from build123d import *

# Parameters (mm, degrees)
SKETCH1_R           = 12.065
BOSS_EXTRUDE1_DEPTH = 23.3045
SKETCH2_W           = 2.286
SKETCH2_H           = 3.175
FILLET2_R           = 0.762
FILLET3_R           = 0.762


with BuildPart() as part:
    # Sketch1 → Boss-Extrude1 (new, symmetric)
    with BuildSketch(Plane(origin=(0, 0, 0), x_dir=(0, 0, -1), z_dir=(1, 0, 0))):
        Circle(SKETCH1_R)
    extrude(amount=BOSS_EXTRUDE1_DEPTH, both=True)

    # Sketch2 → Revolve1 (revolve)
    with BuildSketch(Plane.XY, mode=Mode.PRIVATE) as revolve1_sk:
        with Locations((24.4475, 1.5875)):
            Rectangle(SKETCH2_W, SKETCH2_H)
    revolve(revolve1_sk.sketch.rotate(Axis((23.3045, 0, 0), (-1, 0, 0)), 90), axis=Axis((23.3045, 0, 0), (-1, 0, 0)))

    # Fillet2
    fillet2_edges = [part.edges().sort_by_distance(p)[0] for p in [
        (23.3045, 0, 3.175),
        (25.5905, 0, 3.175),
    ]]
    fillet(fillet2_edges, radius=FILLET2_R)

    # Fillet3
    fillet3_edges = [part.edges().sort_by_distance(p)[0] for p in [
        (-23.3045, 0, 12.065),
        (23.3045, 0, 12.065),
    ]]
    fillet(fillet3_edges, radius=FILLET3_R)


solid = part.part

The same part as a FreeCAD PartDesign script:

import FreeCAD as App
import Part
import Sketcher
from FreeCAD import Vector
Q = App.Units.Quantity


def edges_at(feature, points):
    """Names of the edges that pass closest to the given points."""
    edges = feature.Shape.Edges
    near = lambda p: min(range(len(edges)), key=lambda i: edges[i].distToShape(Part.Vertex(*p))[0])
    return sorted({f"Edge{near(p) + 1}" for p in points})

doc = App.newDocument("Part")
body = doc.addObject("PartDesign::Body", "Body")

# Sketch on YZ plane
sketch1 = body.newObject("Sketcher::SketchObject", "Sketch")
sketch1.AttachmentSupport = (doc.getObject("YZ_Plane"), [""])
sketch1.MapMode = "FlatFace"
sketch1.addGeometry(Part.Circle(Vector(0, 0, 0), Vector(0, 0, 1), 12), False)
sketch1.addConstraint(Sketcher.Constraint("Coincident", 0, 3, -1, 1))
sketch1.addConstraint(Sketcher.Constraint("Diameter", 0, Q("0.95 in")))
pad1 = body.newObject("PartDesign::Pad", "Pad")
pad1.Profile = sketch1
pad1.Length = Q("1.835 in")
pad1.Midplane = True

# Sketch on XY plane
sketch2 = body.newObject("Sketcher::SketchObject", "Sketch001")
sketch2.AttachmentSupport = (doc.getObject("XY_Plane"), [""])
sketch2.MapMode = "FlatFace"
sketch2.addGeometry(Part.LineSegment(Vector(23.3, 3.2, 0), Vector(23.3, 0, 0)), False)
sketch2.addGeometry(Part.LineSegment(Vector(23.3, 0, 0), Vector(25.6, 0, 0)), False)
sketch2.addGeometry(Part.LineSegment(Vector(25.6, 0, 0), Vector(25.6, 3.2, 0)), False)
sketch2.addGeometry(Part.LineSegment(Vector(25.6, 3.2, 0), Vector(23.3, 3.2, 0)), False)
sketch2.addConstraint(Sketcher.Constraint("Coincident", 0, 2, 1, 1))
sketch2.addConstraint(Sketcher.Constraint("Coincident", 1, 2, 2, 1))
sketch2.addConstraint(Sketcher.Constraint("Coincident", 2, 2, 3, 1))
sketch2.addConstraint(Sketcher.Constraint("Coincident", 3, 2, 0, 1))
sketch2.addConstraint(Sketcher.Constraint("Vertical", 0))
sketch2.addConstraint(Sketcher.Constraint("Horizontal", 1))
sketch2.addConstraint(Sketcher.Constraint("Vertical", 2))
sketch2.addConstraint(Sketcher.Constraint("Horizontal", 3))
sketch2.addConstraint(Sketcher.Constraint("PointOnObject", 0, 2, -1))
sketch2.addConstraint(Sketcher.Constraint("DistanceX", 1, 1, 1, 2, Q("0.09 in")))
sketch2.addConstraint(Sketcher.Constraint("DistanceY", 0, 2, 0, 1, Q("0.125 in")))
sketch2.addConstraint(Sketcher.Constraint("DistanceX", -1, 1, 0, 2, Q("0.9175 in")))
revolution = body.newObject("PartDesign::Revolution", "Revolution")
revolution.Profile = sketch2
revolution.ReferenceAxis = (sketch2, ["H_Axis"])
revolution.Angle = 360
doc.recompute()

fillet = body.newObject("PartDesign::Fillet", "Fillet")
fillet.Base = (revolution, edges_at(revolution, [(23.305, 0, 3.175), (25.59, 0, 3.175)]))
fillet.Radius = Q("0.03 in")
doc.recompute()

fillet2 = body.newObject("PartDesign::Fillet", "Fillet001")
fillet2.Base = (fillet, edges_at(fillet, [(-23.305, 0, 12.065), (23.305, 0, 12.065)]))
fillet2.Radius = Q("0.03 in")

doc.recompute()
